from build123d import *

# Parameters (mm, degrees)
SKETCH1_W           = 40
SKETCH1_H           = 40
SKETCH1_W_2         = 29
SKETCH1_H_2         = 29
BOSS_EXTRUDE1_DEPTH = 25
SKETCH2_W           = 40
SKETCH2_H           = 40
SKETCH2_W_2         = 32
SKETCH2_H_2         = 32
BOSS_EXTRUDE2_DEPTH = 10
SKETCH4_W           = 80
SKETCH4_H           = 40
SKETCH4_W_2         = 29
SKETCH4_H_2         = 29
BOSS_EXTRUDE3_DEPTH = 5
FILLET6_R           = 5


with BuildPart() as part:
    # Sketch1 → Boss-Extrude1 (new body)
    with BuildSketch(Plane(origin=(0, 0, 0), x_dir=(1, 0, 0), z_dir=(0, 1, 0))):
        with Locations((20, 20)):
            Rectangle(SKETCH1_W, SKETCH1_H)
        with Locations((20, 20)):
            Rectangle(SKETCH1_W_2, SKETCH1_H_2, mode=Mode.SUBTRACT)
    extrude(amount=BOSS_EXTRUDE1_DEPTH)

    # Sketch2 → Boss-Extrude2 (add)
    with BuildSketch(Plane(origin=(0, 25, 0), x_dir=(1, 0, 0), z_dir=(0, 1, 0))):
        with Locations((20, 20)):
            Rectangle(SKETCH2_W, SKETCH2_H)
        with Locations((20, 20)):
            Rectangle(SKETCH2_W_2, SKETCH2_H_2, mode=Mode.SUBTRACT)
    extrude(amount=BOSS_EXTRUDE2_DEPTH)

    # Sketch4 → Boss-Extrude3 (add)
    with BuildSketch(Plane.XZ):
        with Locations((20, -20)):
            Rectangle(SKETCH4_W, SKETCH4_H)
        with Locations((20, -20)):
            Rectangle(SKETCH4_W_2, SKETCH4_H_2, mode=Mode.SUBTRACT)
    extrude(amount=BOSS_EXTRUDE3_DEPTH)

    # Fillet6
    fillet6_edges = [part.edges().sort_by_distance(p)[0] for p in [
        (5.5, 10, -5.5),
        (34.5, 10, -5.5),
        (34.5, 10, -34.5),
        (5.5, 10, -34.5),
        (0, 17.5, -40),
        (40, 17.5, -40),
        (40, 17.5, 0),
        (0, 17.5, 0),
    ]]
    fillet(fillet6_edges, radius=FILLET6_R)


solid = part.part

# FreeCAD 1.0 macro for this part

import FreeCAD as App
import Part
import Sketcher
Q = App.Units.Quantity


def edges_at(feature, points):
    """Names of the edges that pass closest to the given points."""
    edges = feature.Shape.Edges
    near = lambda p: min(range(len(edges)), key=lambda i: edges[i].distToShape(Part.Vertex(*p))[0])
    return sorted({f"Edge{near(p) + 1}" for p in points})

doc = App.newDocument("Part")
body = doc.addObject("PartDesign::Body", "Body")

# Sketch on XZ plane
sketch1 = body.newObject("Sketcher::SketchObject", "Sketch")
sketch1.AttachmentSupport = (doc.getObject("XZ_Plane"), [""])
sketch1.MapMode = "FlatFace"
sketch1.addGeometry([
    Part.LineSegment(App.Vector(0, -40, 0), App.Vector(0, 0, 0)),  # 0
    Part.LineSegment(App.Vector(0, 0, 0), App.Vector(40, 0, 0)),  # 1
    Part.LineSegment(App.Vector(40, 0, 0), App.Vector(40, -40, 0)),  # 2
    Part.LineSegment(App.Vector(40, -40, 0), App.Vector(0, -40, 0)),  # 3
    Part.LineSegment(App.Vector(34, -6, 0), App.Vector(6, -6, 0)),  # 4
    Part.LineSegment(App.Vector(6, -6, 0), App.Vector(6, -34, 0)),  # 5
    Part.LineSegment(App.Vector(6, -34, 0), App.Vector(34, -34, 0)),  # 6
    Part.LineSegment(App.Vector(34, -34, 0), App.Vector(34, -6, 0)),  # 7
], False)
sketch1.addConstraint([
    Sketcher.Constraint("Coincident", 0, 2, 1, 1),
    Sketcher.Constraint("Coincident", 1, 2, 2, 1),
    Sketcher.Constraint("Coincident", 2, 2, 3, 1),
    Sketcher.Constraint("Coincident", 3, 2, 0, 1),
    Sketcher.Constraint("Coincident", 4, 2, 5, 1),
    Sketcher.Constraint("Coincident", 5, 2, 6, 1),
    Sketcher.Constraint("Coincident", 6, 2, 7, 1),
    Sketcher.Constraint("Coincident", 7, 2, 4, 1),
    Sketcher.Constraint("Vertical", 0),
    Sketcher.Constraint("Horizontal", 1),
    Sketcher.Constraint("Vertical", 2),
    Sketcher.Constraint("Horizontal", 3),
    Sketcher.Constraint("Horizontal", 4),
    Sketcher.Constraint("Vertical", 5),
    Sketcher.Constraint("Horizontal", 6),
    Sketcher.Constraint("Vertical", 7),
    Sketcher.Constraint("Coincident", 0, 2, -1, 1),
    Sketcher.Constraint("Equal", 3, 0),
    Sketcher.Constraint("Equal", 6, 5),
    Sketcher.Constraint("DistanceX", 1, 1, 1, 2, Q("40 mm")),
    Sketcher.Constraint("DistanceX", 4, 2, 4, 1, Q("29 mm")),
    Sketcher.Constraint("DistanceX", -1, 1, 4, 2, Q("5.5 mm")),
    Sketcher.Constraint("DistanceY", 4, 2, -1, 1, Q("5.5 mm")),
])
pad1 = body.newObject("PartDesign::Pad", "Pad")
pad1.Profile = sketch1
pad1.Length = 25
pad1.Reversed = True

# Sketch on XZ plane
sketch2 = body.newObject("Sketcher::SketchObject", "Sketch001")
sketch2.AttachmentSupport = (doc.getObject("XZ_Plane"), [""])
sketch2.MapMode = "FlatFace"
sketch2.AttachmentOffset = App.Placement(App.Vector(0, 0, -25), App.Rotation())
sketch2.addGeometry([
    Part.LineSegment(App.Vector(0, -40, 0), App.Vector(0, 0, 0)),  # 0
    Part.LineSegment(App.Vector(0, 0, 0), App.Vector(40, 0, 0)),  # 1
    Part.LineSegment(App.Vector(40, 0, 0), App.Vector(40, -40, 0)),  # 2
    Part.LineSegment(App.Vector(40, -40, 0), App.Vector(0, -40, 0)),  # 3
    Part.LineSegment(App.Vector(36, -4, 0), App.Vector(4, -4, 0)),  # 4
    Part.LineSegment(App.Vector(4, -4, 0), App.Vector(4, -36, 0)),  # 5
    Part.LineSegment(App.Vector(4, -36, 0), App.Vector(36, -36, 0)),  # 6
    Part.LineSegment(App.Vector(36, -36, 0), App.Vector(36, -4, 0)),  # 7
], False)
sketch2.addConstraint([
    Sketcher.Constraint("Coincident", 0, 2, 1, 1),
    Sketcher.Constraint("Coincident", 1, 2, 2, 1),
    Sketcher.Constraint("Coincident", 2, 2, 3, 1),
    Sketcher.Constraint("Coincident", 3, 2, 0, 1),
    Sketcher.Constraint("Coincident", 4, 2, 5, 1),
    Sketcher.Constraint("Coincident", 5, 2, 6, 1),
    Sketcher.Constraint("Coincident", 6, 2, 7, 1),
    Sketcher.Constraint("Coincident", 7, 2, 4, 1),
    Sketcher.Constraint("Vertical", 0),
    Sketcher.Constraint("Horizontal", 1),
    Sketcher.Constraint("Vertical", 2),
    Sketcher.Constraint("Horizontal", 3),
    Sketcher.Constraint("Horizontal", 4),
    Sketcher.Constraint("Vertical", 5),
    Sketcher.Constraint("Horizontal", 6),
    Sketcher.Constraint("Vertical", 7),
    Sketcher.Constraint("Coincident", 0, 2, -1, 1),
    Sketcher.Constraint("Equal", 3, 0),
    Sketcher.Constraint("Equal", 6, 5),
    Sketcher.Constraint("DistanceX", 1, 1, 1, 2, Q("40 mm")),
    Sketcher.Constraint("DistanceX", 4, 2, 4, 1, Q("32 mm")),
    Sketcher.Constraint("DistanceX", -1, 1, 4, 2, Q("4 mm")),
    Sketcher.Constraint("DistanceY", 4, 2, -1, 1, Q("4 mm")),
])
pad2 = body.newObject("PartDesign::Pad", "Pad001")
pad2.Profile = sketch2
pad2.Length = 10
pad2.Reversed = True

# Sketch on XZ plane
sketch3 = body.newObject("Sketcher::SketchObject", "Sketch002")
sketch3.AttachmentSupport = (doc.getObject("XZ_Plane"), [""])
sketch3.MapMode = "FlatFace"
sketch3.addGeometry([
    Part.LineSegment(App.Vector(-20, 0, 0), App.Vector(-20, -40, 0)),  # 0
    Part.LineSegment(App.Vector(-20, -40, 0), App.Vector(60, -40, 0)),  # 1
    Part.LineSegment(App.Vector(60, -40, 0), App.Vector(60, 0, 0)),  # 2
    Part.LineSegment(App.Vector(60, 0, 0), App.Vector(-20, 0, 0)),  # 3
    Part.LineSegment(App.Vector(34, -34, 0), App.Vector(6, -34, 0)),  # 4
    Part.LineSegment(App.Vector(6, -34, 0), App.Vector(6, -6, 0)),  # 5
    Part.LineSegment(App.Vector(6, -6, 0), App.Vector(34, -6, 0)),  # 6
    Part.LineSegment(App.Vector(34, -6, 0), App.Vector(34, -34, 0)),  # 7
], False)
sketch3.addConstraint([
    Sketcher.Constraint("Coincident", 0, 2, 1, 1),
    Sketcher.Constraint("Coincident", 1, 2, 2, 1),
    Sketcher.Constraint("Coincident", 2, 2, 3, 1),
    Sketcher.Constraint("Coincident", 3, 2, 0, 1),
    Sketcher.Constraint("Coincident", 4, 2, 5, 1),
    Sketcher.Constraint("Coincident", 5, 2, 6, 1),
    Sketcher.Constraint("Coincident", 6, 2, 7, 1),
    Sketcher.Constraint("Coincident", 7, 2, 4, 1),
    Sketcher.Constraint("Vertical", 0),
    Sketcher.Constraint("Horizontal", 1),
    Sketcher.Constraint("Vertical", 2),
    Sketcher.Constraint("Horizontal", 3),
    Sketcher.Constraint("Horizontal", 4),
    Sketcher.Constraint("Vertical", 5),
    Sketcher.Constraint("Horizontal", 6),
    Sketcher.Constraint("Vertical", 7),
    Sketcher.Constraint("PointOnObject", 2, 2, -1),
    Sketcher.Constraint("Equal", 6, 5),
    Sketcher.Constraint("DistanceX", 1, 1, 1, 2, Q("80 mm")),
    Sketcher.Constraint("DistanceX", 4, 2, 4, 1, Q("29 mm")),
    Sketcher.Constraint("DistanceY", 0, 2, 0, 1, Q("40 mm")),
    Sketcher.Constraint("DistanceX", 0, 2, -1, 1, Q("20 mm")),
    Sketcher.Constraint("DistanceX", -1, 1, 4, 2, Q("5.5 mm")),
    Sketcher.Constraint("DistanceY", 4, 2, -1, 1, Q("34.5 mm")),
])
pad3 = body.newObject("PartDesign::Pad", "Pad002")
pad3.Profile = sketch3
pad3.Length = 5
doc.recompute()

fillet = body.newObject("PartDesign::Fillet", "Fillet")
fillet.Base = (pad3, edges_at(pad3, [
    (5.5, 10, -5.5),
    (34.5, 10, -5.5),
    (34.5, 10, -34.5),
    (5.5, 10, -34.5),
    (0, 17.5, -40),
    (40, 17.5, -40),
    (40, 17.5, 0),
    (0, 17.5, 0),
]))
fillet.Radius = 5

doc.recompute()
